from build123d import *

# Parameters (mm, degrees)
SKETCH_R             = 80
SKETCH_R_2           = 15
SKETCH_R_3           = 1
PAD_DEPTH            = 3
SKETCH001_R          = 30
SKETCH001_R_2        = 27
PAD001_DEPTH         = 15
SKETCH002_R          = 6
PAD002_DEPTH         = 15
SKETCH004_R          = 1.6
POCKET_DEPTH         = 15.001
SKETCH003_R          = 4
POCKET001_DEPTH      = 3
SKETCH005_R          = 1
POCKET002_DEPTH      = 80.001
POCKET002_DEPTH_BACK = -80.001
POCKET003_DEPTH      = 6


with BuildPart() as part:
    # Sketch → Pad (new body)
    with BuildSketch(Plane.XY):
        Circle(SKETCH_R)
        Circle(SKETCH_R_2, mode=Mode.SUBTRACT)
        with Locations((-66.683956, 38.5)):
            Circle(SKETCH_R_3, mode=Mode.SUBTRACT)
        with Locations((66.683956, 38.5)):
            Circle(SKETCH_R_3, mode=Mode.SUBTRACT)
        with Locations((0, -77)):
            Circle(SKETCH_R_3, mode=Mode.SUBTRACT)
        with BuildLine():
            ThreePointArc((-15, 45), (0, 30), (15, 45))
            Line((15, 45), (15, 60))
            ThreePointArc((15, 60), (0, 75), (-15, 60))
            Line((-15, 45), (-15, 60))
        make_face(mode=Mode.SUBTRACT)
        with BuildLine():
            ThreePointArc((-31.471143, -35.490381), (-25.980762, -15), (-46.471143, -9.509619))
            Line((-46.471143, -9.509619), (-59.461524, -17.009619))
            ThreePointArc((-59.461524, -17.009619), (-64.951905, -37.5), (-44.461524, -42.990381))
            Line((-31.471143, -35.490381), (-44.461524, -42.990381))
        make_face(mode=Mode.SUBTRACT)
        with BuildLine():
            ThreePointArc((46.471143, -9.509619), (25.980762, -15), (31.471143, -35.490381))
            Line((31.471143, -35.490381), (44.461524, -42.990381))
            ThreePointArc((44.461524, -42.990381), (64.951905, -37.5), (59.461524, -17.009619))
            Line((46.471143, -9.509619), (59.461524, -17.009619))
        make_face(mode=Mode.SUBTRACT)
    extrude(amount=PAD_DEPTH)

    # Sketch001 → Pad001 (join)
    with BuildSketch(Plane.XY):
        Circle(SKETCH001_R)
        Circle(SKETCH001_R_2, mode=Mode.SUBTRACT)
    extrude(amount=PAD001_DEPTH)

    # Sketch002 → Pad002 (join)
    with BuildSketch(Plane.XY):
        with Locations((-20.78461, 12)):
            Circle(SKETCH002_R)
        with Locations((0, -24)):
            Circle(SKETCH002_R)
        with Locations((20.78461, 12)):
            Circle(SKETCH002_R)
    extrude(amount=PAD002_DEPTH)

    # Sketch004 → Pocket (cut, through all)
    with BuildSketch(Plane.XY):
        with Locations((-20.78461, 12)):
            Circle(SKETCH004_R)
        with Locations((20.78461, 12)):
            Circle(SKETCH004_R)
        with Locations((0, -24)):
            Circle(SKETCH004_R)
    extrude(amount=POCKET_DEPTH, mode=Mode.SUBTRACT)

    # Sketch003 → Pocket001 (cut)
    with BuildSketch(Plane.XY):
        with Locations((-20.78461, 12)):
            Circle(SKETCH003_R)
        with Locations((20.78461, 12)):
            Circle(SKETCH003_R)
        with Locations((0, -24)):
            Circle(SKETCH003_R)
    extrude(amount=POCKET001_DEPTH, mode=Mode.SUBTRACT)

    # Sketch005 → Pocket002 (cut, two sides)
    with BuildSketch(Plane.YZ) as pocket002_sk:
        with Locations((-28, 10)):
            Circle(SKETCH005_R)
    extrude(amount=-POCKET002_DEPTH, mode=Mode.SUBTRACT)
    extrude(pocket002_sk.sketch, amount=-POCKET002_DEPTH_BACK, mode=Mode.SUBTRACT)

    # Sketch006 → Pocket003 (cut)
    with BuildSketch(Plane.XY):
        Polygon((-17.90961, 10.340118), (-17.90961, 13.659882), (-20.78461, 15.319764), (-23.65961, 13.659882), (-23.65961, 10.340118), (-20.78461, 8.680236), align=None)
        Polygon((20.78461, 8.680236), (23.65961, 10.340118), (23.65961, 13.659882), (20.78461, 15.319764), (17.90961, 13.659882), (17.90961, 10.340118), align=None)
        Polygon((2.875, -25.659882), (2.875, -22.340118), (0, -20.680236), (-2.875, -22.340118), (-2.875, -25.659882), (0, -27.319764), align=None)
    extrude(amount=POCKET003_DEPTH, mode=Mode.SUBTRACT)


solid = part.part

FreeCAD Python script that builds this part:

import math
import FreeCAD as App
import Part
import Sketcher
from FreeCAD import Vector
Q = App.Units.Quantity

doc = App.newDocument("Part")
params = doc.addObject("Spreadsheet::Sheet", "Params")
for row, (alias, value) in enumerate([
    ("sketch1_diameter", "160 mm"),
    ("sketch1_diameter2", "2 mm"),
    ("sketch1_diameter3", "30 mm"),
    ("sketch1_height", "15 mm"),
    ("sketch1_length", "15 mm"),
    ("pad1_length", "3 mm"),
    ("sketch2_diameter", "60 mm"),
    ("sketch2_diameter2", "54 mm"),
    ("pad2_length", "15 mm"),
    ("sketch3_diameter", "12 mm"),
    ("pad3_length", "15 mm"),
    ("sketch4_diameter", "3.2 mm"),
    ("sketch5_diameter", "8 mm"),
    ("pocket2_length", "3 mm"),
    ("sketch6_diameter", "2 mm"),
    ("pocket4_length", "6 mm"),
], start=1):
    params.set(f"A{row}", alias)
    params.set(f"B{row}", "=" + value)
    params.setAlias(f"B{row}", alias)

body = doc.addObject("PartDesign::Body", "Body")

# Sketch on XY plane
sketch1 = body.newObject("Sketcher::SketchObject", "Sketch")
sketch1.AttachmentSupport = (doc.getObject("XY_Plane"), [""])
sketch1.MapMode = "FlatFace"
sketch1.addGeometry([
    Part.Circle(Vector(0, 0, 0), Vector(0, 0, 1), 80),  # 0
    Part.ArcOfCircle(Part.Circle(Vector(-39, -22.5, 0), Vector(0, 0, 1), 15), math.radians(-60), math.radians(120)),  # 1
    Part.LineSegment(Vector(-31.5, -35.5, 0), Vector(-44.5, -43, 0)),  # 2
    Part.ArcOfCircle(Part.Circle(Vector(-52, -30, 0), Vector(0, 0, 1), 15), math.radians(120), math.radians(300)),  # 3
    Part.LineSegment(Vector(-59.5, -17, 0), Vector(-46.5, -9.5, 0)),  # 4
    Part.Circle(Vector(0, -77, 0), Vector(0, 0, 1), 1),  # 5
    Part.ArcOfCircle(Part.Circle(Vector(39, -22.5, 0), Vector(0, 0, 1), 15), math.radians(60), math.radians(240)),  # 6
    Part.LineSegment(Vector(46.5, -9.5, 0), Vector(59.5, -17, 0)),  # 7
    Part.ArcOfCircle(Part.Circle(Vector(52, -30, 0), Vector(0, 0, 1), 15), math.radians(-120), math.radians(60)),  # 8
    Part.LineSegment(Vector(44.5, -43, 0), Vector(31.5, -35.5, 0)),  # 9
    Part.Circle(Vector(-66.7, 38.5, 0), Vector(0, 0, 1), 1),  # 10
    Part.Circle(Vector(0, 0, 0), Vector(0, 0, 1), 15),  # 11
    Part.ArcOfCircle(Part.Circle(Vector(0, 45, 0), Vector(0, 0, 1), 15), math.radians(180), math.radians(360)),  # 12
    Part.LineSegment(Vector(-15, 45, 0), Vector(-15, 60, 0)),  # 13
    Part.ArcOfCircle(Part.Circle(Vector(0, 60, 0), Vector(0, 0, 1), 15), math.radians(0), math.radians(180)),  # 14
    Part.LineSegment(Vector(15, 60, 0), Vector(15, 45, 0)),  # 15
    Part.Circle(Vector(66.7, 38.5, 0), Vector(0, 0, 1), 1),  # 16
], False)
sketch1.addConstraint([
    Sketcher.Constraint("Tangent", 1, 1, 2, 1),
    Sketcher.Constraint("Tangent", 2, 2, 3, 2),
    Sketcher.Constraint("Tangent", 3, 1, 4, 1),
    Sketcher.Constraint("Tangent", 4, 2, 1, 2),
    Sketcher.Constraint("Tangent", 6, 1, 7, 1),
    Sketcher.Constraint("Tangent", 7, 2, 8, 2),
    Sketcher.Constraint("Tangent", 8, 1, 9, 1),
    Sketcher.Constraint("Tangent", 9, 2, 6, 2),
    Sketcher.Constraint("Tangent", 12, 1, 13, 1),
    Sketcher.Constraint("Tangent", 13, 2, 14, 2),
    Sketcher.Constraint("Tangent", 14, 1, 15, 1),
    Sketcher.Constraint("Tangent", 15, 2, 12, 2),
    Sketcher.Constraint("Vertical", 13),
    Sketcher.Constraint("Vertical", 15),
    Sketcher.Constraint("Coincident", 0, 3, -1, 1),
    Sketcher.Constraint("Coincident", 11, 3, -1, 1),
    Sketcher.Constraint("Equal", 1, 3),
    Sketcher.Constraint("Equal", 3, 6),
    Sketcher.Constraint("Equal", 6, 8),
    Sketcher.Constraint("Equal", 5, 10),
    Sketcher.Constraint("Equal", 8, 11),
    Sketcher.Constraint("Equal", 11, 12),
    Sketcher.Constraint("Equal", 10, 16),
    Sketcher.Constraint("Symmetric", 1, 3, 6, 3, -2),
    Sketcher.Constraint("Symmetric", 3, 3, 8, 3, -2),
    Sketcher.Constraint("Symmetric", 10, 3, 16, 3, -2),
    Sketcher.Constraint("PointOnObject", 5, 3, -2),
    Sketcher.Constraint("PointOnObject", 12, 3, -2),
    Sketcher.Constraint("Diameter", 0, Q("160 mm")),
    Sketcher.Constraint("Diameter", 5, Q("2 mm")),
    Sketcher.Constraint("Diameter", 11, Q("30 mm")),
    Sketcher.Constraint("DistanceY", 13, 1, 13, 2, Q("15 mm")),
    Sketcher.Constraint("Angle", 2, Q("-150 deg")),
    Sketcher.Constraint("Distance", 2, Q("15 mm")),
    Sketcher.Constraint("DistanceY", 3, 3, -1, 1, Q("30 mm")),
    Sketcher.Constraint("DistanceY", 5, 3, -1, 1, Q("77 mm")),
    Sketcher.Constraint("DistanceY", -1, 1, 12, 3, Q("45 mm")),
    Sketcher.Constraint("DistanceY", 1, 3, 10, 3, Q("61 mm")),
    Sketcher.Constraint("DistanceX", 10, 3, 6, 3, Q("105.655099 mm")),
    Sketcher.Constraint("DistanceX", 10, 3, 3, 3, Q("14.722432 mm")),
])
sketch1.setExpression("Constraints[28]", "Params.sketch1_diameter")
sketch1.setExpression("Constraints[29]", "Params.sketch1_diameter2")
sketch1.setExpression("Constraints[30]", "Params.sketch1_diameter3")
sketch1.setExpression("Constraints[31]", "Params.sketch1_height")
sketch1.setExpression("Constraints[33]", "Params.sketch1_length")
pad1 = body.newObject("PartDesign::Pad", "Pad")
pad1.Profile = sketch1
pad1.setExpression("Length", "Params.pad1_length")

# Sketch on XY plane
sketch2 = body.newObject("Sketcher::SketchObject", "Sketch001")
sketch2.AttachmentSupport = (doc.getObject("XY_Plane"), [""])
sketch2.MapMode = "FlatFace"
sketch2.addGeometry([
    Part.Circle(Vector(0, 0, 0), Vector(0, 0, 1), 30),
    Part.Circle(Vector(0, 0, 0), Vector(0, 0, 1), 27),
], False)
sketch2.addConstraint([
    Sketcher.Constraint("Coincident", 0, 3, -1, 1),
    Sketcher.Constraint("Coincident", 1, 3, -1, 1),
    Sketcher.Constraint("Diameter", 0, Q("60 mm")),
    Sketcher.Constraint("Diameter", 1, Q("54 mm")),
])
sketch2.setExpression("Constraints[2]", "Params.sketch2_diameter")
sketch2.setExpression("Constraints[3]", "Params.sketch2_diameter2")
pad2 = body.newObject("PartDesign::Pad", "Pad001")
pad2.Profile = sketch2
pad2.setExpression("Length", "Params.pad2_length")

# Sketch on XY plane
sketch3 = body.newObject("Sketcher::SketchObject", "Sketch002")
sketch3.AttachmentSupport = (doc.getObject("XY_Plane"), [""])
sketch3.MapMode = "FlatFace"
sketch3.addGeometry([
    Part.Circle(Vector(-21, 12, 0), Vector(0, 0, 1), 6),
    Part.Circle(Vector(0, -24, 0), Vector(0, 0, 1), 6),
    Part.Circle(Vector(21, 12, 0), Vector(0, 0, 1), 6),
], False)
sketch3.addConstraint([
    Sketcher.Constraint("Equal", 0, 1),
    Sketcher.Constraint("Equal", 1, 2),
    Sketcher.Constraint("Symmetric", 0, 3, 2, 3, -2),
    Sketcher.Constraint("PointOnObject", 1, 3, -2),
    Sketcher.Constraint("Diameter", 0, Q("12 mm")),
    Sketcher.Constraint("DistanceY", -1, 1, 0, 3, Q("12 mm")),
    Sketcher.Constraint("DistanceY", 1, 3, -1, 1, Q("24 mm")),
    Sketcher.Constraint("DistanceX", 0, 3, -1, 1, Q("20.78461 mm")),
])
sketch3.setExpression("Constraints[4]", "Params.sketch3_diameter")
pad3 = body.newObject("PartDesign::Pad", "Pad002")
pad3.Profile = sketch3
pad3.setExpression("Length", "Params.pad3_length")

# Sketch on XY plane
sketch4 = body.newObject("Sketcher::SketchObject", "Sketch003")
sketch4.AttachmentSupport = (doc.getObject("XY_Plane"), [""])
sketch4.MapMode = "FlatFace"
sketch4.addGeometry([
    Part.Circle(Vector(-20.8, 12, 0), Vector(0, 0, 1), 1.6),
    Part.Circle(Vector(20.8, 12, 0), Vector(0, 0, 1), 1.6),
    Part.Circle(Vector(0, -24, 0), Vector(0, 0, 1), 1.6),
], False)
sketch4.addConstraint([
    Sketcher.Constraint("Equal", 0, 1),
    Sketcher.Constraint("Equal", 1, 2),
    Sketcher.Constraint("Symmetric", 0, 3, 1, 3, -2),
    Sketcher.Constraint("PointOnObject", 2, 3, -2),
    Sketcher.Constraint("Diameter", 0, Q("3.2 mm")),
    Sketcher.Constraint("DistanceY", -1, 1, 0, 3, Q("12 mm")),
    Sketcher.Constraint("DistanceY", 2, 3, -1, 1, Q("24 mm")),
    Sketcher.Constraint("DistanceX", 0, 3, -1, 1, Q("20.78461 mm")),
])
sketch4.setExpression("Constraints[4]", "Params.sketch4_diameter")
pocket1 = body.newObject("PartDesign::Pocket", "Pocket")
pocket1.Profile = sketch4
pocket1.Type = "ThroughAll"
pocket1.Reversed = True

# Sketch on XY plane
sketch5 = body.newObject("Sketcher::SketchObject", "Sketch004")
sketch5.AttachmentSupport = (doc.getObject("XY_Plane"), [""])
sketch5.MapMode = "FlatFace"
sketch5.addGeometry([
    Part.Circle(Vector(-20.8, 12, 0), Vector(0, 0, 1), 4),
    Part.Circle(Vector(20.8, 12, 0), Vector(0, 0, 1), 4),
    Part.Circle(Vector(0, -24, 0), Vector(0, 0, 1), 4),
], False)
sketch5.addConstraint([
    Sketcher.Constraint("Equal", 0, 1),
    Sketcher.Constraint("Equal", 1, 2),
    Sketcher.Constraint("Symmetric", 0, 3, 1, 3, -2),
    Sketcher.Constraint("PointOnObject", 2, 3, -2),
    Sketcher.Constraint("Diameter", 0, Q("8 mm")),
    Sketcher.Constraint("DistanceY", -1, 1, 0, 3, Q("12 mm")),
    Sketcher.Constraint("DistanceY", 2, 3, -1, 1, Q("24 mm")),
    Sketcher.Constraint("DistanceX", 0, 3, -1, 1, Q("20.78461 mm")),
])
sketch5.setExpression("Constraints[4]", "Params.sketch5_diameter")
pocket2 = body.newObject("PartDesign::Pocket", "Pocket001")
pocket2.Profile = sketch5
pocket2.setExpression("Length", "Params.pocket2_length")
pocket2.Reversed = True

# Sketch on YZ plane
sketch6 = body.newObject("Sketcher::SketchObject", "Sketch005")
sketch6.AttachmentSupport = (doc.getObject("YZ_Plane"), [""])
sketch6.MapMode = "FlatFace"
sketch6.addGeometry(Part.Circle(Vector(-28, 10, 0), Vector(0, 0, 1), 1), False)
sketch6.addConstraint([
    Sketcher.Constraint("Diameter", 0, Q("2 mm")),
    Sketcher.Constraint("DistanceX", 0, 3, -1, 1, Q("28 mm")),
    Sketcher.Constraint("DistanceY", -1, 1, 0, 3, Q("10 mm")),
])
sketch6.setExpression("Constraints[0]", "Params.sketch6_diameter")
pocket3 = body.newObject("PartDesign::Pocket", "Pocket002")
pocket3.Profile = sketch6
pocket3.Type = "ThroughAll"
pocket3.Midplane = True

# Sketch on XY plane
sketch7 = body.newObject("Sketcher::SketchObject", "Sketch006")
sketch7.AttachmentSupport = (doc.getObject("XY_Plane"), [""])
sketch7.MapMode = "FlatFace"
sketch7.addGeometry([
    Part.LineSegment(Vector(-17.9, 10.3, 0), Vector(-17.9, 13.7, 0)),  # 0
    Part.LineSegment(Vector(-17.9, 13.7, 0), Vector(-20.8, 15.3, 0)),  # 1
    Part.LineSegment(Vector(-20.8, 15.3, 0), Vector(-23.7, 13.7, 0)),  # 2
    Part.LineSegment(Vector(-23.7, 13.7, 0), Vector(-23.7, 10.3, 0)),  # 3
    Part.LineSegment(Vector(-23.7, 10.3, 0), Vector(-20.8, 8.7, 0)),  # 4
    Part.LineSegment(Vector(-20.8, 8.7, 0), Vector(-17.9, 10.3, 0)),  # 5
    Part.LineSegment(Vector(20.8, 8.7, 0), Vector(23.7, 10.3, 0)),  # 6
    Part.LineSegment(Vector(23.7, 10.3, 0), Vector(23.7, 13.7, 0)),  # 7
    Part.LineSegment(Vector(23.7, 13.7, 0), Vector(20.8, 15.3, 0)),  # 8
    Part.LineSegment(Vector(20.8, 15.3, 0), Vector(17.9, 13.7, 0)),  # 9
    Part.LineSegment(Vector(17.9, 13.7, 0), Vector(17.9, 10.3, 0)),  # 10
    Part.LineSegment(Vector(17.9, 10.3, 0), Vector(20.8, 8.7, 0)),  # 11
    Part.LineSegment(Vector(2.9, -25.7, 0), Vector(2.9, -22.3, 0)),  # 12
    Part.LineSegment(Vector(2.9, -22.3, 0), Vector(0, -20.7, 0)),  # 13
    Part.LineSegment(Vector(0, -20.7, 0), Vector(-2.9, -22.3, 0)),  # 14
    Part.LineSegment(Vector(-2.9, -22.3, 0), Vector(-2.9, -25.7, 0)),  # 15
    Part.LineSegment(Vector(-2.9, -25.7, 0), Vector(0, -27.3, 0)),  # 16
    Part.LineSegment(Vector(0, -27.3, 0), Vector(2.9, -25.7, 0)),  # 17
], False)
sketch7.addConstraint([
    Sketcher.Constraint("Coincident", 0, 2, 1, 1),
    Sketcher.Constraint("Coincident", 1, 2, 2, 1),
    Sketcher.Constraint("Coincident", 2, 2, 3, 1),
    Sketcher.Constraint("Coincident", 3, 2, 4, 1),
    Sketcher.Constraint("Coincident", 4, 2, 5, 1),
    Sketcher.Constraint("Coincident", 5, 2, 0, 1),
    Sketcher.Constraint("Coincident", 6, 2, 7, 1),
    Sketcher.Constraint("Coincident", 7, 2, 8, 1),
    Sketcher.Constraint("Coincident", 8, 2, 9, 1),
    Sketcher.Constraint("Coincident", 9, 2, 10, 1),
    Sketcher.Constraint("Coincident", 10, 2, 11, 1),
    Sketcher.Constraint("Coincident", 11, 2, 6, 1),
    Sketcher.Constraint("Coincident", 12, 2, 13, 1),
    Sketcher.Constraint("Coincident", 13, 2, 14, 1),
    Sketcher.Constraint("Coincident", 14, 2, 15, 1),
    Sketcher.Constraint("Coincident", 15, 2, 16, 1),
    Sketcher.Constraint("Coincident", 16, 2, 17, 1),
    Sketcher.Constraint("Coincident", 17, 2, 12, 1),
    Sketcher.Constraint("Vertical", 0),
    Sketcher.Constraint("Vertical", 3),
    Sketcher.Constraint("Vertical", 7),
    Sketcher.Constraint("Vertical", 10),
    Sketcher.Constraint("Vertical", 12),
    Sketcher.Constraint("Vertical", 15),
    Sketcher.Constraint("Symmetric", 3, 2, 6, 2, -2),
    Sketcher.Constraint("Symmetric", 1, 2, 8, 2, -2),
    Sketcher.Constraint("Symmetric", 0, 2, 9, 2, -2),
    Sketcher.Constraint("Symmetric", 4, 2, 11, 2, -2),
    Sketcher.Constraint("Symmetric", 12, 2, 14, 2, -2),
    Sketcher.Constraint("PointOnObject", 13, 2, -2),
    Sketcher.Constraint("PointOnObject", 16, 2, -2),
    Sketcher.Constraint("Parallel", 1, 4),
    Sketcher.Constraint("Parallel", 2, 5),
    Sketcher.Constraint("Parallel", 5, 6),
    Sketcher.Constraint("Parallel", 4, 8),
    Sketcher.Constraint("Parallel", 8, 11),
    Sketcher.Constraint("Parallel", 11, 13),
    Sketcher.Constraint("Parallel", 13, 16),
    Sketcher.Constraint("Parallel", 14, 17),
    Sketcher.Constraint("Horizontal", 0, 2, 2, 2),
    Sketcher.Constraint("Horizontal", 3, 2, 5, 2),
    Sketcher.Constraint("Equal", 10, 12),
    Sketcher.Constraint("Equal", 11, 13),
    Sketcher.Constraint("Angle", 1, Q("150 deg")),
    Sketcher.Constraint("DistanceY", 12, 2, 9, 2, Q("36 mm")),
    Sketcher.Constraint("DistanceX", 2, 2, 0, 2, Q("5.75 mm")),
    Sketcher.Constraint("DistanceY", 0, 1, 0, 2, Q("3.319764 mm")),
    Sketcher.Constraint("DistanceX", 0, 2, -1, 1, Q("17.90961 mm")),
    Sketcher.Constraint("DistanceY", 12, 2, -1, 1, Q("22.340118 mm")),
])
pocket4 = body.newObject("PartDesign::Pocket", "Pocket003")
pocket4.Profile = sketch7
pocket4.setExpression("Length", "Params.pocket4_length")
pocket4.Reversed = True

doc.recompute()
